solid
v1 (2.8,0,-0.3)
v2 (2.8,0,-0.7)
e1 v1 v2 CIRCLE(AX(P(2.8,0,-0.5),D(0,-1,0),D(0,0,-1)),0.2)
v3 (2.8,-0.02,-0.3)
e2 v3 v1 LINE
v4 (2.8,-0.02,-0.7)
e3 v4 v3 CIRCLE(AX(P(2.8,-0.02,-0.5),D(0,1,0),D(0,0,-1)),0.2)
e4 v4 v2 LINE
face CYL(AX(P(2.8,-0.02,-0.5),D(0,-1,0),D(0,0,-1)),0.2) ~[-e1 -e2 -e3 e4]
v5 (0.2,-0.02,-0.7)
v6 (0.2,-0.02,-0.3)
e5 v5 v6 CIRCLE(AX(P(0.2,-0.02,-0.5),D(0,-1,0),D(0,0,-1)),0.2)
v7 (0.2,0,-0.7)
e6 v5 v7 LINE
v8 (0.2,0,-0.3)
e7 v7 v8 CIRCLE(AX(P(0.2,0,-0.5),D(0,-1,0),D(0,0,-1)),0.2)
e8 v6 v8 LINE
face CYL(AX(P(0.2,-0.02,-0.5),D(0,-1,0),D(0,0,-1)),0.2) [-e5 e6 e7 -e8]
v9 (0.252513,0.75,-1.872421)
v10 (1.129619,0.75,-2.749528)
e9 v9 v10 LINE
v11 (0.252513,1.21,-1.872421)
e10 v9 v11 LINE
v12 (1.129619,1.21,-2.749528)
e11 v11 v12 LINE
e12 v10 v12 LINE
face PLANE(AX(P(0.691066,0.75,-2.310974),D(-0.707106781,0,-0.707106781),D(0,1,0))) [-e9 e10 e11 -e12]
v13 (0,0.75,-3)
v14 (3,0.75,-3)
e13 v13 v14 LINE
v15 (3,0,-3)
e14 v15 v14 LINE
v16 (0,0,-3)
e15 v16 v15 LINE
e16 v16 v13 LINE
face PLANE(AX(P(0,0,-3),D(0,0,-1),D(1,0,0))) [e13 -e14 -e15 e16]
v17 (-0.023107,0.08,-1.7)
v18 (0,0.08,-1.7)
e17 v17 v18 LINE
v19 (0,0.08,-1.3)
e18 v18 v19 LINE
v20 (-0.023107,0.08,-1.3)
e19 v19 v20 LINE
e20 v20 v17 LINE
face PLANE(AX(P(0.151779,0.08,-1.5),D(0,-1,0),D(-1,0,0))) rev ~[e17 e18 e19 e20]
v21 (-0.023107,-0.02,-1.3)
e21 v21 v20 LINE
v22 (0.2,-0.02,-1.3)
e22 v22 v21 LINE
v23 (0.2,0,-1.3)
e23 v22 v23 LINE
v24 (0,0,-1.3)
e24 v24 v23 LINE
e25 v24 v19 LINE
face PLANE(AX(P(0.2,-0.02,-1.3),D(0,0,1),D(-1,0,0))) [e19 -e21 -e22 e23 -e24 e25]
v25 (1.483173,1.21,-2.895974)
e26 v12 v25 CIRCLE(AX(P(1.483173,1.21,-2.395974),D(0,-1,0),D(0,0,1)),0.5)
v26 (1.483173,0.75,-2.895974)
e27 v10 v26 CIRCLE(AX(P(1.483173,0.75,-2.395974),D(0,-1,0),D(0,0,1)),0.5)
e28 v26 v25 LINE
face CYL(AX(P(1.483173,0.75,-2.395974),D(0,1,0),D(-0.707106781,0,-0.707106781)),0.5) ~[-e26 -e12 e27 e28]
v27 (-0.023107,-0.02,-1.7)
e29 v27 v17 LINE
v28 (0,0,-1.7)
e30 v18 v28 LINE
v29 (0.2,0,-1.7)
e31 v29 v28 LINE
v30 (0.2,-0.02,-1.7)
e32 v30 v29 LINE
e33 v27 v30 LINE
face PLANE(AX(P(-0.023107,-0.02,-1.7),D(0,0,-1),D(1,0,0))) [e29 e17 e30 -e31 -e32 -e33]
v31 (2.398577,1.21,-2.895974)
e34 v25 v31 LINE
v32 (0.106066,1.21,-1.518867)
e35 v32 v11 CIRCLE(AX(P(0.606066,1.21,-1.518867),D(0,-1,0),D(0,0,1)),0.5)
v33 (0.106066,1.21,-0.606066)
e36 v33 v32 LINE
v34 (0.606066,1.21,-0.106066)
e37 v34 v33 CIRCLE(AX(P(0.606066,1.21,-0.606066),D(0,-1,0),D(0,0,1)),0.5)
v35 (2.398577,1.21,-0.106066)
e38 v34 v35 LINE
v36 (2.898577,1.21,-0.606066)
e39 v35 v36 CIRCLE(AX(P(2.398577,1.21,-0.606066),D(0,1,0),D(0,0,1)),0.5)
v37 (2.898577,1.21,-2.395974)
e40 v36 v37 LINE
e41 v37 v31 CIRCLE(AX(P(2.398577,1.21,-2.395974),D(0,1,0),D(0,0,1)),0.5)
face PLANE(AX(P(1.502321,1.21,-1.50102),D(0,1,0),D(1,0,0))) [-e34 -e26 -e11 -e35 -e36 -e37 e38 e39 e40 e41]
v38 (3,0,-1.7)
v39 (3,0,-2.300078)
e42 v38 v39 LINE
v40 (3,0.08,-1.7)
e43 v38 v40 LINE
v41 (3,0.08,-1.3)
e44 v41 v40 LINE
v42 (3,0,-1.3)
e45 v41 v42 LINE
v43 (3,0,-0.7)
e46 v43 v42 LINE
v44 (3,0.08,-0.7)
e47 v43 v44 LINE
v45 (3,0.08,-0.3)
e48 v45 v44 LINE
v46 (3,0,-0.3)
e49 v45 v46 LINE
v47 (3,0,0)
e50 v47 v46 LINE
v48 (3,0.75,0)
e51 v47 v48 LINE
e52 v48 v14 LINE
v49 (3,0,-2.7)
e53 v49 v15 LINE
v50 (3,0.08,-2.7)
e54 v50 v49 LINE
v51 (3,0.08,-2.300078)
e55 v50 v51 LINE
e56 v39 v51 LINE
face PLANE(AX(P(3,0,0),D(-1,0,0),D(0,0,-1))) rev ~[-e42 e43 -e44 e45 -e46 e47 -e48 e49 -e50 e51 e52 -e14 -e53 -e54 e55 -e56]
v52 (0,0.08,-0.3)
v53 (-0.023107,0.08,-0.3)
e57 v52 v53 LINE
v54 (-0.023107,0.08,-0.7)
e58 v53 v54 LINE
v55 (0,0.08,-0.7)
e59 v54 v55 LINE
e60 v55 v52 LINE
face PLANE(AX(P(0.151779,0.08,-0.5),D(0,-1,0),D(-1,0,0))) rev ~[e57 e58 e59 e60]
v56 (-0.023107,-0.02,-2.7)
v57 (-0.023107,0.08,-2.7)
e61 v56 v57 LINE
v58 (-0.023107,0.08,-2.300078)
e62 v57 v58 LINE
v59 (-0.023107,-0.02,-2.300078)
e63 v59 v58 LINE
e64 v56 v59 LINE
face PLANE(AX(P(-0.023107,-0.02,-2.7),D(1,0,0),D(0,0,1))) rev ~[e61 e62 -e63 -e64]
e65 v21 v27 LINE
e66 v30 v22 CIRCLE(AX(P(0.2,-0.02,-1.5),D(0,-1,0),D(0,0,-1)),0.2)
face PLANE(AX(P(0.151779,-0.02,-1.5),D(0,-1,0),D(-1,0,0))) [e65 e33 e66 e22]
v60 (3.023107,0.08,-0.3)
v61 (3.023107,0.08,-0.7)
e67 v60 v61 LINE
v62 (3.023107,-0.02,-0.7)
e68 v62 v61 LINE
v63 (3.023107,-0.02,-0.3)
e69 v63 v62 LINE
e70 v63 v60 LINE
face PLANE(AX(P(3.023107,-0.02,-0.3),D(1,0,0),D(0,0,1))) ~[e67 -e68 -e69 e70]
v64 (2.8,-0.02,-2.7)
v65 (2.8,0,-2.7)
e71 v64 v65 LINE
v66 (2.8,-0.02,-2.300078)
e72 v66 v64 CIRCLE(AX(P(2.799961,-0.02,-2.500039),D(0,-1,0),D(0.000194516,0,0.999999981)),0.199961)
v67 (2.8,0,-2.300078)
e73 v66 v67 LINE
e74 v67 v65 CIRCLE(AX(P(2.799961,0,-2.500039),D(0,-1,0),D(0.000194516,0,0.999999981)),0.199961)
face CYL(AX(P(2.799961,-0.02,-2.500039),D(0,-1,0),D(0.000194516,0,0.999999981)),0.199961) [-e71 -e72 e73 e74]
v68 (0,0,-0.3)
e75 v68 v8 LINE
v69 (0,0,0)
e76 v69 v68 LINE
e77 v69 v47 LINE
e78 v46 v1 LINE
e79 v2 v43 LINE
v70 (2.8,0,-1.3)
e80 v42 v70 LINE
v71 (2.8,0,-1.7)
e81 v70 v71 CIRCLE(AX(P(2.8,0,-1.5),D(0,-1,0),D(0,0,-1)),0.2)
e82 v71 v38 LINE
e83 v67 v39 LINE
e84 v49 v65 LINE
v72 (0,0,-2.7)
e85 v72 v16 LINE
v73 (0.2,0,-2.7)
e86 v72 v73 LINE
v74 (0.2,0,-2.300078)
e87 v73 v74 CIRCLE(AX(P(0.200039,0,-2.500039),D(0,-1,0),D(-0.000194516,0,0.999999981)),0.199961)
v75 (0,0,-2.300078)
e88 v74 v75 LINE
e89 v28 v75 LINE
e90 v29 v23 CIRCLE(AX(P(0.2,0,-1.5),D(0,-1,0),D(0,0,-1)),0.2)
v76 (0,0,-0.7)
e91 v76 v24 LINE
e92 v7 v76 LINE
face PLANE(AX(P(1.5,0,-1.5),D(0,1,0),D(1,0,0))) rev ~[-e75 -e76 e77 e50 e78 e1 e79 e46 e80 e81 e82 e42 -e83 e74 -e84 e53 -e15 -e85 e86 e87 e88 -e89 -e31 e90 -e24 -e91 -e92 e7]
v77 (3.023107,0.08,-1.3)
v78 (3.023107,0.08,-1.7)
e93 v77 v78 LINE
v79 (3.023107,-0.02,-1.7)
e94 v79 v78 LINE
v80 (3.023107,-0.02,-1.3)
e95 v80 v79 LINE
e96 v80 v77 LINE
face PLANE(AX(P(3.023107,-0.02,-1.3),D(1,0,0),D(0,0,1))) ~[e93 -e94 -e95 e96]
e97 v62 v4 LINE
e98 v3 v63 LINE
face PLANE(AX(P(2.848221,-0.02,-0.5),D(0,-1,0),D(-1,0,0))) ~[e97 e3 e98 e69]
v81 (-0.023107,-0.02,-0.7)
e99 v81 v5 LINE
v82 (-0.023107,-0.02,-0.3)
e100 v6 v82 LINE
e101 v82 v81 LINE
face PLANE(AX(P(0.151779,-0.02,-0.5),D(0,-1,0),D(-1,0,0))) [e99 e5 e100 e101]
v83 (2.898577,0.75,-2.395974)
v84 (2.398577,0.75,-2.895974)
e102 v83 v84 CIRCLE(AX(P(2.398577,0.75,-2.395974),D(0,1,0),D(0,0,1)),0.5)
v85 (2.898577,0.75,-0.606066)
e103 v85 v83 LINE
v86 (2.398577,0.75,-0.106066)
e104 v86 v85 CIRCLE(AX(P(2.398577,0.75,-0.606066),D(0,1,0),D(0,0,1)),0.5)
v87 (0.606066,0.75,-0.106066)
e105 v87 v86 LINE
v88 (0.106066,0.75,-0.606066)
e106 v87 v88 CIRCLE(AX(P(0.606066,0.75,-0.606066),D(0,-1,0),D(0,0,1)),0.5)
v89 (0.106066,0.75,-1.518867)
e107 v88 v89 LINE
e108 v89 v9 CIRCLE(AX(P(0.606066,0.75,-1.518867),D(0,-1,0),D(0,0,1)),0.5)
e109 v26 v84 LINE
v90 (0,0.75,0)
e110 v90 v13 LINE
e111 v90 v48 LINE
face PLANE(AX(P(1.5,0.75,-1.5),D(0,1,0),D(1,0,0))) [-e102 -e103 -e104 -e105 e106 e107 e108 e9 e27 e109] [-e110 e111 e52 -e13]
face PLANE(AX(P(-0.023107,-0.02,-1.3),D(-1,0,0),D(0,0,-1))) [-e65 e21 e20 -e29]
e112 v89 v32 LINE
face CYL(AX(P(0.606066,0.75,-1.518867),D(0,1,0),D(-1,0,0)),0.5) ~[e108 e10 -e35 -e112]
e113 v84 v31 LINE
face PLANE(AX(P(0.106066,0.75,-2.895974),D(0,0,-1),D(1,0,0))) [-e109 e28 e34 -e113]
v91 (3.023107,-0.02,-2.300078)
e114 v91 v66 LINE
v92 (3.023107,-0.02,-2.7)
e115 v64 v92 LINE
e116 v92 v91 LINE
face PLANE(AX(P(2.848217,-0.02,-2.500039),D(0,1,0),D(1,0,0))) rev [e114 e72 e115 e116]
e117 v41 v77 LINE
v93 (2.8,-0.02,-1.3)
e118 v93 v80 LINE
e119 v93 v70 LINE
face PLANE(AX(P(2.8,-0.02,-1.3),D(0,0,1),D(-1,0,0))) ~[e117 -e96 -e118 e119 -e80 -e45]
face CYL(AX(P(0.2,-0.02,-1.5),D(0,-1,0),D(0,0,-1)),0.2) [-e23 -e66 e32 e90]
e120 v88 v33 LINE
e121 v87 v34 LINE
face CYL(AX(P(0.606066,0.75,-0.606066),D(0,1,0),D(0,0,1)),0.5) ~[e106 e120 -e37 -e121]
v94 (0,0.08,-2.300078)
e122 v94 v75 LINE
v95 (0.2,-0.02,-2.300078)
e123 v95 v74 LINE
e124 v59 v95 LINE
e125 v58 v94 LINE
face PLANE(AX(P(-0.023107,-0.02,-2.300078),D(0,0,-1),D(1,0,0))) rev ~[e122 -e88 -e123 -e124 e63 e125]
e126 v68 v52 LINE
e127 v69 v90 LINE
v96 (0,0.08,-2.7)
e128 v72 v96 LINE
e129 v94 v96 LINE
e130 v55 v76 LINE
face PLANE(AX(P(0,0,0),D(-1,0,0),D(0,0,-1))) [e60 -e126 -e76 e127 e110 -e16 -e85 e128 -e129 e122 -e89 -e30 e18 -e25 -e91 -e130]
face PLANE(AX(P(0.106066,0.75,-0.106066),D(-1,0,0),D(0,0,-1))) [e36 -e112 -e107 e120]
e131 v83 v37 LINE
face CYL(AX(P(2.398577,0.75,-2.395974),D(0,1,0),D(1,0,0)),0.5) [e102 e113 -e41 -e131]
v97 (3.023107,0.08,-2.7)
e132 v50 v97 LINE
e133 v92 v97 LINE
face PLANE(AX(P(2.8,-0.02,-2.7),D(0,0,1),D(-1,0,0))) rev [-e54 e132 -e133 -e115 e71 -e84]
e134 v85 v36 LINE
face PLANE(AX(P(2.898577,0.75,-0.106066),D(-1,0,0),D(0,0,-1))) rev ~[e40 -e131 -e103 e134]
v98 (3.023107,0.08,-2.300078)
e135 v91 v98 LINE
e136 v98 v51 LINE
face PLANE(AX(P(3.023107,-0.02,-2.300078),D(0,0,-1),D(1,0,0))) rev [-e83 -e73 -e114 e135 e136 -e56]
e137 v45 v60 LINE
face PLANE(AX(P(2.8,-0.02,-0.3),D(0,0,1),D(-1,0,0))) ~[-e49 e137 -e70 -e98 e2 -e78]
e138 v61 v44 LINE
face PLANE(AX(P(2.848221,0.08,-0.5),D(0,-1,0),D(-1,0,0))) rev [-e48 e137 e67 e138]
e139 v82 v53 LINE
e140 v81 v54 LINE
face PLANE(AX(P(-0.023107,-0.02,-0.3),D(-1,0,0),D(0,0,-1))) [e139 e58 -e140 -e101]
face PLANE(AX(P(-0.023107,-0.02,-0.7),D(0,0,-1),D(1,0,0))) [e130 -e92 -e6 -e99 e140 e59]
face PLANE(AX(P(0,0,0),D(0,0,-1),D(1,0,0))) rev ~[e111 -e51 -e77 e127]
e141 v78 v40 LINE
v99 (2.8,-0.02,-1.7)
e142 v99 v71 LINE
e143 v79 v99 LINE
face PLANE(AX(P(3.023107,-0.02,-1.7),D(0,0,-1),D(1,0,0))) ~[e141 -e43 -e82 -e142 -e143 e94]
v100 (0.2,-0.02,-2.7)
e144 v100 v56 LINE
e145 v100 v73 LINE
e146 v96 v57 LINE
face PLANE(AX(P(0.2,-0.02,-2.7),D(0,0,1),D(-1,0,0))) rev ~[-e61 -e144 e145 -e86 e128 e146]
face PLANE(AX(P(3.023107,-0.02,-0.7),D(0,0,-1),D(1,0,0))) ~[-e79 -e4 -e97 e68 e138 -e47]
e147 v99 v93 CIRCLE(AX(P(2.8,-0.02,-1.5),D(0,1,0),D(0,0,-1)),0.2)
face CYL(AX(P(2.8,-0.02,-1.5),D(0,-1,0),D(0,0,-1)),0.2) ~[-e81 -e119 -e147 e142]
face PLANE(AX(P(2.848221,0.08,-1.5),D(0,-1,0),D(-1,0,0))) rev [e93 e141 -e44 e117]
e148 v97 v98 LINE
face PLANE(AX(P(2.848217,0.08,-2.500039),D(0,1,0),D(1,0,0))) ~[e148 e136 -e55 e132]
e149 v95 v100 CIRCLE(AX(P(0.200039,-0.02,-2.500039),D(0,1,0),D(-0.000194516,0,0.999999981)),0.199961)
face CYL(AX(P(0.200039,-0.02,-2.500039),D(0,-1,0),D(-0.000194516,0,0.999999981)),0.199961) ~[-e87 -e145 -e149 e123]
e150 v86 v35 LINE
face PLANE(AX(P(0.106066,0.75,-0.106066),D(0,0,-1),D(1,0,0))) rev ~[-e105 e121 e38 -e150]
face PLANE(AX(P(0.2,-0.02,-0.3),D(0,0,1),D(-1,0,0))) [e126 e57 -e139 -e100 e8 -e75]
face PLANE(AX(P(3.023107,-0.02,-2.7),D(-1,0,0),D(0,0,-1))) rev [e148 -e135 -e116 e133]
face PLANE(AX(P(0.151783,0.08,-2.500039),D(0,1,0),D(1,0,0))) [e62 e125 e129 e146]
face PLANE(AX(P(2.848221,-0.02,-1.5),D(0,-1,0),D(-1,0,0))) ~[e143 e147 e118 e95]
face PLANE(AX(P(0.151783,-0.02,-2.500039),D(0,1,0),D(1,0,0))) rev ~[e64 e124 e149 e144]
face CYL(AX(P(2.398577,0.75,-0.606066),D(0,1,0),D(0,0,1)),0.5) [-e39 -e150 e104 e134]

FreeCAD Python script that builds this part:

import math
import FreeCAD as App
import Part
import Sketcher

V = App.Vector
Q = App.Units.Quantity


def edges_at(feature, points):
    """Names of the edges that pass closest to the given points."""
    edges = feature.Shape.Edges
    near = lambda p: min(range(len(edges)), key=lambda i: edges[i].distToShape(Part.Vertex(*p))[0])
    return sorted({f"Edge{near(p) + 1}" for p in points})


def add_polygon(sketch, points):
    """Adds a closed chain of lines whose ends are joined by coincident constraints."""
    first, n = sketch.GeometryCount, len(points)
    for a, b in zip(points, points[1:] + points[:1]):
        sketch.addGeometry(Part.LineSegment(App.Vector(*a, 0), App.Vector(*b, 0)), False)
    for i in range(n):
        sketch.addConstraint(Sketcher.Constraint("Coincident", first + i, 2, first + (i + 1) % n, 1))

doc = App.newDocument("Part")
body = doc.addObject("PartDesign::Body", "Body")

# Sketch on XZ plane
sketch1 = body.newObject("Sketcher::SketchObject", "Sketch")
sketch1.AttachmentSupport = (doc.getObject("XZ_Plane"), [""])
sketch1.MapMode = "FlatFace"
add_polygon(sketch1, [(0, -3), (0, 0), (3, 0), (3, -3)])  # lines 0-3
sketch1.addConstraint(Sketcher.Constraint("Vertical", 0))
sketch1.addConstraint(Sketcher.Constraint("Horizontal", 1))
sketch1.addConstraint(Sketcher.Constraint("Vertical", 2))
sketch1.addConstraint(Sketcher.Constraint("Horizontal", 3))
sketch1.addConstraint(Sketcher.Constraint("Coincident", 0, 2, -1, 1))
sketch1.addConstraint(Sketcher.Constraint("Equal", 3, 0))
sketch1.addConstraint(Sketcher.Constraint("DistanceX", 1, 1, 1, 2, Q("3 mm")))
pad1 = body.newObject("PartDesign::Pad", "Pad")
pad1.Profile = sketch1
pad1.Length = 0.75
pad1.Reversed = True

# Sketch on XZ plane
sketch2 = body.newObject("Sketcher::SketchObject", "Sketch001")
sketch2.AttachmentSupport = (doc.getObject("XZ_Plane"), [""])
sketch2.MapMode = "FlatFace"
sketch2.AttachmentOffset = App.Placement(V(0, 0, -0.75), App.Rotation())
add_polygon(sketch2, [(0.1, -2.9), (0.1, -0.1), (2.9, -0.1), (2.9, -2.9)])  # lines 0-3
sketch2.addConstraint(Sketcher.Constraint("Vertical", 0))
sketch2.addConstraint(Sketcher.Constraint("Horizontal", 1))
sketch2.addConstraint(Sketcher.Constraint("Vertical", 2))
sketch2.addConstraint(Sketcher.Constraint("Horizontal", 3))
sketch2.addConstraint(Sketcher.Constraint("DistanceX", 1, 1, 1, 2, Q("2.792511 mm")))
sketch2.addConstraint(Sketcher.Constraint("DistanceY", 0, 1, 0, 2, Q("2.789908 mm")))
sketch2.addConstraint(Sketcher.Constraint("DistanceX", -1, 1, 0, 2, Q("0.106066 mm")))
sketch2.addConstraint(Sketcher.Constraint("DistanceY", 0, 2, -1, 1, Q("0.106066 mm")))
pad2 = body.newObject("PartDesign::Pad", "Pad001")
pad2.Profile = sketch2
pad2.Length = 0.46
pad2.Reversed = True
doc.recompute()

fillet = body.newObject("PartDesign::Fillet", "Fillet")
fillet.Base = (pad2, edges_at(pad2, [(2.899, 0.98, -0.106), (2.899, 0.98, -2.896), (0.106, 0.98, -0.106)]))
fillet.Radius = 0.5
doc.recompute()

chamfer = body.newObject("PartDesign::Chamfer", "Chamfer")
chamfer.Base = (fillet, edges_at(fillet, [(0.106, 0.98, -2.896)]))
chamfer.Size = 1.17
doc.recompute()

fillet2 = body.newObject("PartDesign::Fillet", "Fillet001")
fillet2.Base = (chamfer, edges_at(chamfer, [(0.106, 0.98, -1.726), (1.276, 0.98, -2.896)]))
fillet2.Radius = 0.5

# Sketch on XZ plane
sketch3 = body.newObject("Sketcher::SketchObject", "Sketch002")
sketch3.AttachmentSupport = (doc.getObject("XZ_Plane"), [""])
sketch3.MapMode = "FlatFace"
sketch3.AttachmentOffset = App.Placement(V(0, 0, 0.02), App.Rotation())
sketch3.addGeometry(Part.LineSegment(V(0.2, -0.3, 0), V(-0.02, -0.3, 0)), False)
sketch3.addGeometry(Part.LineSegment(V(-0.02, -0.3, 0), V(-0.02, -0.7, 0)), False)
sketch3.addGeometry(Part.LineSegment(V(-0.02, -0.7, 0), V(0.2, -0.7, 0)), False)
sketch3.addGeometry(Part.ArcOfCircle(Part.Circle(V(0.2, -0.5, 0), V(0, 0, 1), 0.2), math.radians(-90), math.radians(90)), False)
sketch3.addGeometry(Part.LineSegment(V(0.2, -1.3, 0), V(-0.02, -1.3, 0)), False)
sketch3.addGeometry(Part.LineSegment(V(-0.02, -1.3, 0), V(-0.02, -1.7, 0)), False)
sketch3.addGeometry(Part.LineSegment(V(-0.02, -1.7, 0), V(0.2, -1.7, 0)), False)
sketch3.addGeometry(Part.ArcOfCircle(Part.Circle(V(0.2, -1.5, 0), V(0, 0, 1), 0.2), math.radians(-90), math.radians(90)), False)
sketch3.addGeometry(Part.LineSegment(V(-0.02, -2.7, 0), V(0.2, -2.7, 0)), False)
sketch3.addGeometry(Part.ArcOfCircle(Part.Circle(V(0.2, -2.5, 0), V(0, 0, 1), 0.2), math.radians(-90), math.radians(90)), False)
sketch3.addGeometry(Part.LineSegment(V(0.2, -2.3, 0), V(-0.02, -2.3, 0)), False)
sketch3.addGeometry(Part.LineSegment(V(-0.02, -2.3, 0), V(-0.02, -2.7, 0)), False)
sketch3.addConstraint(Sketcher.Constraint("Coincident", 0, 2, 1, 1))
sketch3.addConstraint(Sketcher.Constraint("Coincident", 1, 2, 2, 1))
sketch3.addConstraint(Sketcher.Constraint("Tangent", 2, 2, 3, 1))
sketch3.addConstraint(Sketcher.Constraint("Tangent", 3, 2, 0, 1))
sketch3.addConstraint(Sketcher.Constraint("Coincident", 4, 2, 5, 1))
sketch3.addConstraint(Sketcher.Constraint("Coincident", 5, 2, 6, 1))
sketch3.addConstraint(Sketcher.Constraint("Tangent", 6, 2, 7, 1))
sketch3.addConstraint(Sketcher.Constraint("Tangent", 7, 2, 4, 1))
sketch3.addConstraint(Sketcher.Constraint("Coincident", 8, 2, 9, 1))
sketch3.addConstraint(Sketcher.Constraint("Coincident", 9, 2, 10, 1))
sketch3.addConstraint(Sketcher.Constraint("Coincident", 10, 2, 11, 1))
sketch3.addConstraint(Sketcher.Constraint("Coincident", 11, 2, 8, 1))
sketch3.addConstraint(Sketcher.Constraint("Horizontal", 0))
sketch3.addConstraint(Sketcher.Constraint("Vertical", 1))
sketch3.addConstraint(Sketcher.Constraint("Horizontal", 2))
sketch3.addConstraint(Sketcher.Constraint("Horizontal", 4))
sketch3.addConstraint(Sketcher.Constraint("Vertical", 5))
sketch3.addConstraint(Sketcher.Constraint("Horizontal", 6))
sketch3.addConstraint(Sketcher.Constraint("Horizontal", 8))
sketch3.addConstraint(Sketcher.Constraint("Horizontal", 10))
sketch3.addConstraint(Sketcher.Constraint("Vertical", 11))
sketch3.addConstraint(Sketcher.Constraint("Equal", 3, 7))
sketch3.addConstraint(Sketcher.Constraint("Vertical", 3, 3, 7, 3))
sketch3.addConstraint(Sketcher.Constraint("Vertical", 1, 2, 4, 2))
sketch3.addConstraint(Sketcher.Constraint("Vertical", 7, 2, 8, 2))
sketch3.addConstraint(Sketcher.Constraint("Vertical", 8, 2, 9, 2))
sketch3.addConstraint(Sketcher.Constraint("Vertical", 5, 2, 10, 2))
sketch3.addConstraint(Sketcher.Constraint("Radius", 3, Q("0.2 mm")))
sketch3.addConstraint(Sketcher.Constraint("DistanceY", 7, 3, 3, 3, Q("1 mm")))
sketch3.addConstraint(Sketcher.Constraint("DistanceY", 8, 2, 6, 2, Q("1 mm")))
sketch3.addConstraint(Sketcher.Constraint("DistanceX", -1, 1, 3, 3, Q("0.2 mm")))
sketch3.addConstraint(Sketcher.Constraint("DistanceY", 3, 3, -1, 1, Q("0.5 mm")))
sketch3.addConstraint(Sketcher.Constraint("Radius", 9, Q("0.199961 mm")))
sketch3.addConstraint(Sketcher.Constraint("DistanceX", 0, 2, 0, 1, Q("0.223107 mm")))
sketch3.addConstraint(Sketcher.Constraint("DistanceX", -1, 1, 9, 3, Q("0.200039 mm")))
pad3 = body.newObject("PartDesign::Pad", "Pad002")
pad3.Profile = sketch3
pad3.Length = 0.1
pad3.Reversed = True
doc.recompute()

datumplane = body.newObject("PartDesign::Plane", "DatumPlane")
datumplane.AttachmentSupport = (doc.getObject("YZ_Plane"), [""])
datumplane.MapMode = "FlatFace"
datumplane.AttachmentOffset = App.Placement(V(0, 0, 1.5), App.Rotation())
mirrored = body.newObject("PartDesign::Mirrored", "Mirrored")
mirrored.Originals = [pad3]
mirrored.MirrorPlane = (datumplane, [""])
body.Tip = mirrored

doc.recompute()
